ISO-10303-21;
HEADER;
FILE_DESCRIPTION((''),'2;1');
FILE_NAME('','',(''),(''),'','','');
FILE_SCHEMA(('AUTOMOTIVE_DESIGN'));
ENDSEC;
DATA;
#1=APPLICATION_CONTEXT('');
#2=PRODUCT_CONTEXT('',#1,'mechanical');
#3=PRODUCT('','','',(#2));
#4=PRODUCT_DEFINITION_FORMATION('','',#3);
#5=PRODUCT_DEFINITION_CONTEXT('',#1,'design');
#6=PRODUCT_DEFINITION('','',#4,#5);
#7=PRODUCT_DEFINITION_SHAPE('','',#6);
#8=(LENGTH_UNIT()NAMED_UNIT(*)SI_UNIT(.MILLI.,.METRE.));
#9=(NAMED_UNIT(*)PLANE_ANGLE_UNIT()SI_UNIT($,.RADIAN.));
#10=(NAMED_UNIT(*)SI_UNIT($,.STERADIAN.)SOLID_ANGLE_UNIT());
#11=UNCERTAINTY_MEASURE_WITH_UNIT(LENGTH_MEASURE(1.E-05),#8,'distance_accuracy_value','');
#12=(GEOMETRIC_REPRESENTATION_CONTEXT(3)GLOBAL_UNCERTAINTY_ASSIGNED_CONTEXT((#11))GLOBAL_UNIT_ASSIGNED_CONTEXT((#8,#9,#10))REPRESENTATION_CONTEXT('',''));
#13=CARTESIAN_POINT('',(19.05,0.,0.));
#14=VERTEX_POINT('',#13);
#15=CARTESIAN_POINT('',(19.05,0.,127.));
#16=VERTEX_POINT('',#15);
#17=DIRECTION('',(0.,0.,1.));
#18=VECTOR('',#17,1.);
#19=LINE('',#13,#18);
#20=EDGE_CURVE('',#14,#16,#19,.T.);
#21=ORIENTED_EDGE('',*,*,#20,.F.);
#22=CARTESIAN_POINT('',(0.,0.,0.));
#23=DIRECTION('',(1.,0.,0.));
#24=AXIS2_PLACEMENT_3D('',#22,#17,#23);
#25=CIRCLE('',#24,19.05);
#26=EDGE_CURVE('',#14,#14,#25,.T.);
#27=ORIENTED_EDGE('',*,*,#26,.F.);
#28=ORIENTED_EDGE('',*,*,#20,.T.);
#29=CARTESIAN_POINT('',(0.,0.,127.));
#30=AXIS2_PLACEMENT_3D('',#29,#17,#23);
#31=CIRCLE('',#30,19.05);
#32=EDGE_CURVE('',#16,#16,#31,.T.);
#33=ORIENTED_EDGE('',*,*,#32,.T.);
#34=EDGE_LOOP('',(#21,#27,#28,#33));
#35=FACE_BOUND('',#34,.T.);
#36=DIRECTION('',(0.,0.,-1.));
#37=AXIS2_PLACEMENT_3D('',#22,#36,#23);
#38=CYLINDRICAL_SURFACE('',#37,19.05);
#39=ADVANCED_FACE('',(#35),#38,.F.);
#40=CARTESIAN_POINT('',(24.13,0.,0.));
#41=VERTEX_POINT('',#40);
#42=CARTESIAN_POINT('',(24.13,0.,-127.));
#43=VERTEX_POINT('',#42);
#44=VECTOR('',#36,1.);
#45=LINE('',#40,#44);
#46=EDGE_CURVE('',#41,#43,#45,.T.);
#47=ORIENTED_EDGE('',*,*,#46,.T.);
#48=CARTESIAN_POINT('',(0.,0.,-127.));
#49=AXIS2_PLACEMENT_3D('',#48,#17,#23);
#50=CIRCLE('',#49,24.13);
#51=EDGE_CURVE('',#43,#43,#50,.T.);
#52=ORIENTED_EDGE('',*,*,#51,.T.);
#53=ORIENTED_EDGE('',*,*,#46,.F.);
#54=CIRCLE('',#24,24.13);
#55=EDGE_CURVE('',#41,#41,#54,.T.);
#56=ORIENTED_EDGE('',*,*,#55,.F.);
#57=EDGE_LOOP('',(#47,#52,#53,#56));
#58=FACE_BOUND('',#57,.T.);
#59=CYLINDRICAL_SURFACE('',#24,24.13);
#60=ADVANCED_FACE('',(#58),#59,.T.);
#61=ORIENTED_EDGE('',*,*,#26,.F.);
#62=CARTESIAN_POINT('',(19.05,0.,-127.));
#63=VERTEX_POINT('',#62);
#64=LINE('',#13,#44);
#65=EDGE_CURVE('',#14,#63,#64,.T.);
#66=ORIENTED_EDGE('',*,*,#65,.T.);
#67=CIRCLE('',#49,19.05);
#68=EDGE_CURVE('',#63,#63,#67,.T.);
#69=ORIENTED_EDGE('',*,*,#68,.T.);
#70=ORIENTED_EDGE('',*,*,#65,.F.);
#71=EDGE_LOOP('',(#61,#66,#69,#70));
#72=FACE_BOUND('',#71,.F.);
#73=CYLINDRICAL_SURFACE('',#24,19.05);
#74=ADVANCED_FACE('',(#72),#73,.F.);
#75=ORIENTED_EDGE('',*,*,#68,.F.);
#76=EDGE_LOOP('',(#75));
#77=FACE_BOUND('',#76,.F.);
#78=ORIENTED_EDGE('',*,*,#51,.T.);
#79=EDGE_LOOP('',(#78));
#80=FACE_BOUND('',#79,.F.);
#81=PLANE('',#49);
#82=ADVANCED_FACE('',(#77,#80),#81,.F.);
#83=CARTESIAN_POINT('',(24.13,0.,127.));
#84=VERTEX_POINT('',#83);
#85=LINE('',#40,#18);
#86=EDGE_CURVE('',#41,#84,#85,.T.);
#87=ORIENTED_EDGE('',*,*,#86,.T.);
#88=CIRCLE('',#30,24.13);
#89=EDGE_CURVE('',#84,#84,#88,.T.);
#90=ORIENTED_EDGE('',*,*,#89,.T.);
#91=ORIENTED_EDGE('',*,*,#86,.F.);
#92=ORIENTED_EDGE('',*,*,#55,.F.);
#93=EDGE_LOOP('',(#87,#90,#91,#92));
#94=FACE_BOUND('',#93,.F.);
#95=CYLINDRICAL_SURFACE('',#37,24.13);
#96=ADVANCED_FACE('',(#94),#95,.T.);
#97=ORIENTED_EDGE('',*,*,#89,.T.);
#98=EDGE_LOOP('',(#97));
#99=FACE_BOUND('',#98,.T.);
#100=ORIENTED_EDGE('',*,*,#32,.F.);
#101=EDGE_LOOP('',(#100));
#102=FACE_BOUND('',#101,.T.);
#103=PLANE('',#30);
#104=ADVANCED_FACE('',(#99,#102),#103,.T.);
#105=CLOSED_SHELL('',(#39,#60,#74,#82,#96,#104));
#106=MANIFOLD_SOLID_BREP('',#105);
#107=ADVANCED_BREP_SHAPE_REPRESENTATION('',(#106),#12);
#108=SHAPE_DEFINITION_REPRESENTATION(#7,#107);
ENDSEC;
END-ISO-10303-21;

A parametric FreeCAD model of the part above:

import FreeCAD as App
import Part
import Sketcher
from FreeCAD import Vector
Q = App.Units.Quantity

doc = App.newDocument("Part")
params = doc.addObject("Spreadsheet::Sheet", "Params")
for row, (alias, value) in enumerate([
    ("sketch1_diameter", "1.9 in"),
    ("sketch1_diameter2", "1.5 in"),
    ("pad1_length", "10 in"),
], start=1):
    params.set(f"A{row}", alias)
    params.set(f"B{row}", "=" + value)
    params.setAlias(f"B{row}", alias)

body = doc.addObject("PartDesign::Body", "Body")

# Sketch on XY plane
sketch1 = body.newObject("Sketcher::SketchObject", "Sketch")
sketch1.AttachmentSupport = (doc.getObject("XY_Plane"), [""])
sketch1.MapMode = "FlatFace"
sketch1.addGeometry([
    Part.Circle(Vector(0, 0, 0), Vector(0, 0, 1), 24),
    Part.Circle(Vector(0, 0, 0), Vector(0, 0, 1), 19),
], False)
sketch1.addConstraint([
    Sketcher.Constraint("Coincident", 0, 3, -1, 1),
    Sketcher.Constraint("Coincident", 1, 3, -1, 1),
    Sketcher.Constraint("Diameter", 0, Q("1.9 in")),
    Sketcher.Constraint("Diameter", 1, Q("1.5 in")),
])
sketch1.setExpression("Constraints[2]", "Params.sketch1_diameter")
sketch1.setExpression("Constraints[3]", "Params.sketch1_diameter2")
pad1 = body.newObject("PartDesign::Pad", "Pad")
pad1.Profile = sketch1
pad1.setExpression("Length", "Params.pad1_length")
pad1.Midplane = True

doc.recompute()
